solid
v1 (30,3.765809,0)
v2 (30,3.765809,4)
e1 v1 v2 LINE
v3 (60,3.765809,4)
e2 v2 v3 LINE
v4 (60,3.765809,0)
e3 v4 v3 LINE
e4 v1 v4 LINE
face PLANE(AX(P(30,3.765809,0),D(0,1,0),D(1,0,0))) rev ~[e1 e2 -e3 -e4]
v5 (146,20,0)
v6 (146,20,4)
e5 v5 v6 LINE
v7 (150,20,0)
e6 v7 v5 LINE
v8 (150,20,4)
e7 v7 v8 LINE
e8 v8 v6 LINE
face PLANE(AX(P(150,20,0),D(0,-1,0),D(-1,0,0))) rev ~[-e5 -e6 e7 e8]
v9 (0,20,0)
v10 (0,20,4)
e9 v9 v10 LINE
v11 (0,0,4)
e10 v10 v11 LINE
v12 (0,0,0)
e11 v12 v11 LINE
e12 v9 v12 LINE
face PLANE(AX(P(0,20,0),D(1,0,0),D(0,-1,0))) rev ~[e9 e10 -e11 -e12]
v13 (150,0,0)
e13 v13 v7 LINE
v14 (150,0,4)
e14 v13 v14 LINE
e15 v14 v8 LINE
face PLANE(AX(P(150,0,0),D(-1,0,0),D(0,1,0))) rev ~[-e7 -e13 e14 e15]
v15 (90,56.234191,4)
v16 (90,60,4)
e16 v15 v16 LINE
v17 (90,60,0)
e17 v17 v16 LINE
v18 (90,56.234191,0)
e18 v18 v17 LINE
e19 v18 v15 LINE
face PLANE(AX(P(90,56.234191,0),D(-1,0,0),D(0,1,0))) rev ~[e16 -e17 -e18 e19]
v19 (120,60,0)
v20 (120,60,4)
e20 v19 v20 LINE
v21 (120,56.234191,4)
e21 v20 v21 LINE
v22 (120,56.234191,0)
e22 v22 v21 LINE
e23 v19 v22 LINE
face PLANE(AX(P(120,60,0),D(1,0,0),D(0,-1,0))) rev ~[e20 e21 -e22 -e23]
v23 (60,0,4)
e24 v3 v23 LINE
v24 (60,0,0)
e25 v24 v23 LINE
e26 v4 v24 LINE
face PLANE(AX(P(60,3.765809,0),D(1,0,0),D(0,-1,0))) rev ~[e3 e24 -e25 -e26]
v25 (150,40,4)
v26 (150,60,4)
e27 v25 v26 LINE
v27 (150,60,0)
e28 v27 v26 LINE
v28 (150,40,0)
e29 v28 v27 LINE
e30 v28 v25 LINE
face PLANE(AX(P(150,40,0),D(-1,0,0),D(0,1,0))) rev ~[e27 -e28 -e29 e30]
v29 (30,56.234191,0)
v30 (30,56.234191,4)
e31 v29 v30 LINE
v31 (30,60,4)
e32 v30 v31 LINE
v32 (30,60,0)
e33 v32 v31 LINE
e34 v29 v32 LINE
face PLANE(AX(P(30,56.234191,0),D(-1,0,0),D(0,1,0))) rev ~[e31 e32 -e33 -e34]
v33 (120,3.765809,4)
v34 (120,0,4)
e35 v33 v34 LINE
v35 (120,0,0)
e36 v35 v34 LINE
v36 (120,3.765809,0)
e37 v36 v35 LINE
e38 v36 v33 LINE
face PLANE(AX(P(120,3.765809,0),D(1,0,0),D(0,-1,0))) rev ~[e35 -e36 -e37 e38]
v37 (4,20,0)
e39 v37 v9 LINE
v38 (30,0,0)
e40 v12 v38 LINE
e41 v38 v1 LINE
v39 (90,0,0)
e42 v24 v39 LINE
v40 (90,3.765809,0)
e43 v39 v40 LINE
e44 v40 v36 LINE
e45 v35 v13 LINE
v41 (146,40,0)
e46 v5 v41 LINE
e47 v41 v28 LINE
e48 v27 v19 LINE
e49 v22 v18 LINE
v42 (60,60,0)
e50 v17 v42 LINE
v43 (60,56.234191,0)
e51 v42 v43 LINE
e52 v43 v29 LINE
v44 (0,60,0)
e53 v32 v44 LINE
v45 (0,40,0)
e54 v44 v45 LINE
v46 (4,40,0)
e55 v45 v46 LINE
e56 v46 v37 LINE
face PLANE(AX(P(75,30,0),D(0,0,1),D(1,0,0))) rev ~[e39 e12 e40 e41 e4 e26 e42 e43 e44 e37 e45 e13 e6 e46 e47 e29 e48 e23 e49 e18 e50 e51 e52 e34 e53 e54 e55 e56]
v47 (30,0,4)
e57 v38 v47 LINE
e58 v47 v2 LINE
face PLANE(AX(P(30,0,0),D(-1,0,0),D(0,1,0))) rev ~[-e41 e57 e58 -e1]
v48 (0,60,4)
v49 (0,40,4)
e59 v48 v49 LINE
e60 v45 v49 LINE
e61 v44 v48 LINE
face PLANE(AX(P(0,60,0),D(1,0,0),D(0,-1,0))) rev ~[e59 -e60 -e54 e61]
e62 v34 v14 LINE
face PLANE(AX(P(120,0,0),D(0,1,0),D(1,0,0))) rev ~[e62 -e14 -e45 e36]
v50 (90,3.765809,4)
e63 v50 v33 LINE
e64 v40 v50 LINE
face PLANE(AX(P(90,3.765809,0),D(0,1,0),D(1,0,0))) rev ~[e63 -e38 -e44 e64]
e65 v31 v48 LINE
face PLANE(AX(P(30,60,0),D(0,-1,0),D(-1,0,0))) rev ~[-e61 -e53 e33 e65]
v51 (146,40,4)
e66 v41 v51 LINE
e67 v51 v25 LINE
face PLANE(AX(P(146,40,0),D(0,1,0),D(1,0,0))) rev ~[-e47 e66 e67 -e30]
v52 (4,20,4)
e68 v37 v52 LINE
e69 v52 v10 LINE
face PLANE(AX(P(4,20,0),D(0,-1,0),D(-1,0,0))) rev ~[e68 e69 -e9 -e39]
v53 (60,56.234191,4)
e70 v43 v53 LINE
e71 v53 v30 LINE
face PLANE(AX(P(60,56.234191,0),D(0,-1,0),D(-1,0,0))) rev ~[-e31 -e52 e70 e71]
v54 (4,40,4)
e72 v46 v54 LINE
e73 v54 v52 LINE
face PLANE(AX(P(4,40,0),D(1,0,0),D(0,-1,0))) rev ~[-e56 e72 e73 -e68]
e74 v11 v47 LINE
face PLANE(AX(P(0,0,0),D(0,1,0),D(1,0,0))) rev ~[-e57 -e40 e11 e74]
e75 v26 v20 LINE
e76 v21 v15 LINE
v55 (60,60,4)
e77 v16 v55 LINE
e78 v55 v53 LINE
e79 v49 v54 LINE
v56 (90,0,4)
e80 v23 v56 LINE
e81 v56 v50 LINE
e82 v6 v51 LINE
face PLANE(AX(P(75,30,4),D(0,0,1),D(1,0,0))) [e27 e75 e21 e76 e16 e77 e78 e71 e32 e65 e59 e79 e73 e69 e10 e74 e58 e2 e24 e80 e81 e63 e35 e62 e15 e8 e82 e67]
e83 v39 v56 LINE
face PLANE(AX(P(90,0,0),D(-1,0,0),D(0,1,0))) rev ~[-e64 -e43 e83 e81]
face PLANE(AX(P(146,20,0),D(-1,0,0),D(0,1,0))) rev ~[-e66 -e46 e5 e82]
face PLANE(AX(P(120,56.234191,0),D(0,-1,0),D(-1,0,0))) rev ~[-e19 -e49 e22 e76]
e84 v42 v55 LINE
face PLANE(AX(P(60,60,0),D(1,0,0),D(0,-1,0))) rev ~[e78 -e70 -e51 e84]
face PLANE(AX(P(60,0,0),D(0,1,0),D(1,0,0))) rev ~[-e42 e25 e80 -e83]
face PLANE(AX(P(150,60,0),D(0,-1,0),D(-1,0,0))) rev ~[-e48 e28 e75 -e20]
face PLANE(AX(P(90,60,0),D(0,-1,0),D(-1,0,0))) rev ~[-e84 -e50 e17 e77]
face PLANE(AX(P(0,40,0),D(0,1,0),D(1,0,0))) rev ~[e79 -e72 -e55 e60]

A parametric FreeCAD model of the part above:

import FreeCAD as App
import Part
import Sketcher
from FreeCAD import Vector

doc = App.newDocument("Part")
params = doc.addObject("Spreadsheet::Sheet", "Params")
for row, (alias, value) in enumerate([
    ("sketch1_width", "30 mm"),
    ("sketch1_width2", "4 mm"),
    ("sketch1_height", "20 mm"),
    ("pad1_length", "4 mm"),
], start=1):
    params.set(f"A{row}", alias)
    params.set(f"B{row}", "=" + value)
    params.setAlias(f"B{row}", alias)

body = doc.addObject("PartDesign::Body", "Body")

sketch1 = body.newObject("Sketcher::SketchObject", "Sketch")
sketch1.AttachmentSupport = (doc.getObject("XY_Plane"), [""])
sketch1.MapMode = "FlatFace"
sketch1.addGeometry([
    Part.LineSegment(Vector(0, 20, 0), Vector(0, 0, 0)),
    Part.LineSegment(Vector(0, 0, 0), Vector(30, 0, 0)),
    Part.LineSegment(Vector(30, 0, 0), Vector(30, 3.8, 0)),
    Part.LineSegment(Vector(30, 3.8, 0), Vector(60, 3.8, 0)),
    Part.LineSegment(Vector(60, 3.8, 0), Vector(60, 0, 0)),
    Part.LineSegment(Vector(60, 0, 0), Vector(90, 0, 0)),
    Part.LineSegment(Vector(90, 0, 0), Vector(90, 3.8, 0)),
    Part.LineSegment(Vector(90, 3.8, 0), Vector(120, 3.8, 0)),
    Part.LineSegment(Vector(120, 3.8, 0), Vector(120, 0, 0)),
    Part.LineSegment(Vector(120, 0, 0), Vector(150, 0, 0)),
    Part.LineSegment(Vector(150, 0, 0), Vector(150, 20, 0)),
    Part.LineSegment(Vector(150, 20, 0), Vector(146, 20, 0)),
    Part.LineSegment(Vector(146, 20, 0), Vector(146, 40, 0)),
    Part.LineSegment(Vector(146, 40, 0), Vector(150, 40, 0)),
    Part.LineSegment(Vector(150, 40, 0), Vector(150, 60, 0)),
    Part.LineSegment(Vector(150, 60, 0), Vector(120, 60, 0)),
    Part.LineSegment(Vector(120, 60, 0), Vector(120, 56.2, 0)),
    Part.LineSegment(Vector(120, 56.2, 0), Vector(90, 56.2, 0)),
    Part.LineSegment(Vector(90, 56.2, 0), Vector(90, 60, 0)),
    Part.LineSegment(Vector(90, 60, 0), Vector(60, 60, 0)),
    Part.LineSegment(Vector(60, 60, 0), Vector(60, 56.2, 0)),
    Part.LineSegment(Vector(60, 56.2, 0), Vector(30, 56.2, 0)),
    Part.LineSegment(Vector(30, 56.2, 0), Vector(30, 60, 0)),
    Part.LineSegment(Vector(30, 60, 0), Vector(0, 60, 0)),
    Part.LineSegment(Vector(0, 60, 0), Vector(0, 40, 0)),
    Part.LineSegment(Vector(0, 40, 0), Vector(4, 40, 0)),
    Part.LineSegment(Vector(4, 40, 0), Vector(4, 20, 0)),
    Part.LineSegment(Vector(4, 20, 0), Vector(0, 20, 0)),
], False)
sketch1.addConstraint([
    Sketcher.Constraint("Coincident", 0, 2, 1, 1),
    Sketcher.Constraint("Coincident", 1, 2, 2, 1),
    Sketcher.Constraint("Coincident", 2, 2, 3, 1),
    Sketcher.Constraint("Coincident", 3, 2, 4, 1),
    Sketcher.Constraint("Coincident", 4, 2, 5, 1),
    Sketcher.Constraint("Coincident", 5, 2, 6, 1),
    Sketcher.Constraint("Coincident", 6, 2, 7, 1),
    Sketcher.Constraint("Coincident", 7, 2, 8, 1),
    Sketcher.Constraint("Coincident", 8, 2, 9, 1),
    Sketcher.Constraint("Coincident", 9, 2, 10, 1),
    Sketcher.Constraint("Coincident", 10, 2, 11, 1),
    Sketcher.Constraint("Coincident", 11, 2, 12, 1),
    Sketcher.Constraint("Coincident", 12, 2, 13, 1),
    Sketcher.Constraint("Coincident", 13, 2, 14, 1),
    Sketcher.Constraint("Coincident", 14, 2, 15, 1),
    Sketcher.Constraint("Coincident", 15, 2, 16, 1),
    Sketcher.Constraint("Coincident", 16, 2, 17, 1),
    Sketcher.Constraint("Coincident", 17, 2, 18, 1),
    Sketcher.Constraint("Coincident", 18, 2, 19, 1),
    Sketcher.Constraint("Coincident", 19, 2, 20, 1),
    Sketcher.Constraint("Coincident", 20, 2, 21, 1),
    Sketcher.Constraint("Coincident", 21, 2, 22, 1),
    Sketcher.Constraint("Coincident", 22, 2, 23, 1),
    Sketcher.Constraint("Coincident", 23, 2, 24, 1),
    Sketcher.Constraint("Coincident", 24, 2, 25, 1),
    Sketcher.Constraint("Coincident", 25, 2, 26, 1),
    Sketcher.Constraint("Coincident", 26, 2, 27, 1),
    Sketcher.Constraint("Coincident", 27, 2, 0, 1),
    Sketcher.Constraint("Vertical", 0),
    Sketcher.Constraint("Horizontal", 1),
    Sketcher.Constraint("Vertical", 2),
    Sketcher.Constraint("Horizontal", 3),
    Sketcher.Constraint("Vertical", 4),
    Sketcher.Constraint("Horizontal", 5),
    Sketcher.Constraint("Vertical", 6),
    Sketcher.Constraint("Horizontal", 7),
    Sketcher.Constraint("Vertical", 8),
    Sketcher.Constraint("Horizontal", 9),
    Sketcher.Constraint("Vertical", 10),
    Sketcher.Constraint("Horizontal", 11),
    Sketcher.Constraint("Vertical", 12),
    Sketcher.Constraint("Horizontal", 13),
    Sketcher.Constraint("Vertical", 14),
    Sketcher.Constraint("Horizontal", 15),
    Sketcher.Constraint("Vertical", 16),
    Sketcher.Constraint("Horizontal", 17),
    Sketcher.Constraint("Vertical", 18),
    Sketcher.Constraint("Horizontal", 19),
    Sketcher.Constraint("Vertical", 20),
    Sketcher.Constraint("Horizontal", 21),
    Sketcher.Constraint("Vertical", 22),
    Sketcher.Constraint("Horizontal", 23),
    Sketcher.Constraint("Vertical", 24),
    Sketcher.Constraint("Horizontal", 25),
    Sketcher.Constraint("Vertical", 26),
    Sketcher.Constraint("Horizontal", 27),
    Sketcher.Constraint("Coincident", 0, 2, -1, 1),
    Sketcher.Constraint("PointOnObject", 4, 2, -1),
    Sketcher.Constraint("PointOnObject", 8, 2, -1),
    Sketcher.Constraint("PointOnObject", 23, 2, -2),
    Sketcher.Constraint("Horizontal", 3, 2, 6, 2),
    Sketcher.Constraint("Horizontal", 15, 2, 18, 2),
    Sketcher.Constraint("Horizontal", 17, 2, 20, 2),
    Sketcher.Constraint("Horizontal", 19, 2, 22, 2),
    Sketcher.Constraint("Horizontal", 13, 2, 24, 2),
    Sketcher.Constraint("Horizontal", 11, 2, 26, 2),
    Sketcher.Constraint("Vertical", 10, 2, 13, 2),
    Sketcher.Constraint("Vertical", 8, 2, 15, 2),
    Sketcher.Constraint("Vertical", 6, 2, 17, 2),
    Sketcher.Constraint("Vertical", 4, 2, 19, 2),
    Sketcher.Constraint("Vertical", 2, 2, 21, 2),
    Sketcher.Constraint("Equal", 1, 3),
    Sketcher.Constraint("Equal", 3, 5),
    Sketcher.Constraint("Equal", 5, 7),
    Sketcher.Constraint("Equal", 7, 9),
    Sketcher.Constraint("Equal", 13, 25),
    Sketcher.Constraint("Equal", 10, 12),
    Sketcher.Constraint("Equal", 12, 14),
    Sketcher.Constraint("Equal", 8, 16),
    Sketcher.Constraint("DistanceX", 1, 1, 1, 2, 30.0),
    Sketcher.Constraint("DistanceX", 11, 2, 11, 1, 4.0),
    Sketcher.Constraint("DistanceY", 0, 2, 0, 1, 20.0),
    Sketcher.Constraint("DistanceY", 2, 1, 2, 2, 3.765809),
])
sketch1.setExpression("Constraints[79]", "Params.sketch1_width")
sketch1.setExpression("Constraints[80]", "Params.sketch1_width2")
sketch1.setExpression("Constraints[81]", "Params.sketch1_height")
pad1 = body.newObject("PartDesign::Pad", "Pad")
pad1.Profile = sketch1
pad1.setExpression("Length", "Params.pad1_length")

doc.recompute()
